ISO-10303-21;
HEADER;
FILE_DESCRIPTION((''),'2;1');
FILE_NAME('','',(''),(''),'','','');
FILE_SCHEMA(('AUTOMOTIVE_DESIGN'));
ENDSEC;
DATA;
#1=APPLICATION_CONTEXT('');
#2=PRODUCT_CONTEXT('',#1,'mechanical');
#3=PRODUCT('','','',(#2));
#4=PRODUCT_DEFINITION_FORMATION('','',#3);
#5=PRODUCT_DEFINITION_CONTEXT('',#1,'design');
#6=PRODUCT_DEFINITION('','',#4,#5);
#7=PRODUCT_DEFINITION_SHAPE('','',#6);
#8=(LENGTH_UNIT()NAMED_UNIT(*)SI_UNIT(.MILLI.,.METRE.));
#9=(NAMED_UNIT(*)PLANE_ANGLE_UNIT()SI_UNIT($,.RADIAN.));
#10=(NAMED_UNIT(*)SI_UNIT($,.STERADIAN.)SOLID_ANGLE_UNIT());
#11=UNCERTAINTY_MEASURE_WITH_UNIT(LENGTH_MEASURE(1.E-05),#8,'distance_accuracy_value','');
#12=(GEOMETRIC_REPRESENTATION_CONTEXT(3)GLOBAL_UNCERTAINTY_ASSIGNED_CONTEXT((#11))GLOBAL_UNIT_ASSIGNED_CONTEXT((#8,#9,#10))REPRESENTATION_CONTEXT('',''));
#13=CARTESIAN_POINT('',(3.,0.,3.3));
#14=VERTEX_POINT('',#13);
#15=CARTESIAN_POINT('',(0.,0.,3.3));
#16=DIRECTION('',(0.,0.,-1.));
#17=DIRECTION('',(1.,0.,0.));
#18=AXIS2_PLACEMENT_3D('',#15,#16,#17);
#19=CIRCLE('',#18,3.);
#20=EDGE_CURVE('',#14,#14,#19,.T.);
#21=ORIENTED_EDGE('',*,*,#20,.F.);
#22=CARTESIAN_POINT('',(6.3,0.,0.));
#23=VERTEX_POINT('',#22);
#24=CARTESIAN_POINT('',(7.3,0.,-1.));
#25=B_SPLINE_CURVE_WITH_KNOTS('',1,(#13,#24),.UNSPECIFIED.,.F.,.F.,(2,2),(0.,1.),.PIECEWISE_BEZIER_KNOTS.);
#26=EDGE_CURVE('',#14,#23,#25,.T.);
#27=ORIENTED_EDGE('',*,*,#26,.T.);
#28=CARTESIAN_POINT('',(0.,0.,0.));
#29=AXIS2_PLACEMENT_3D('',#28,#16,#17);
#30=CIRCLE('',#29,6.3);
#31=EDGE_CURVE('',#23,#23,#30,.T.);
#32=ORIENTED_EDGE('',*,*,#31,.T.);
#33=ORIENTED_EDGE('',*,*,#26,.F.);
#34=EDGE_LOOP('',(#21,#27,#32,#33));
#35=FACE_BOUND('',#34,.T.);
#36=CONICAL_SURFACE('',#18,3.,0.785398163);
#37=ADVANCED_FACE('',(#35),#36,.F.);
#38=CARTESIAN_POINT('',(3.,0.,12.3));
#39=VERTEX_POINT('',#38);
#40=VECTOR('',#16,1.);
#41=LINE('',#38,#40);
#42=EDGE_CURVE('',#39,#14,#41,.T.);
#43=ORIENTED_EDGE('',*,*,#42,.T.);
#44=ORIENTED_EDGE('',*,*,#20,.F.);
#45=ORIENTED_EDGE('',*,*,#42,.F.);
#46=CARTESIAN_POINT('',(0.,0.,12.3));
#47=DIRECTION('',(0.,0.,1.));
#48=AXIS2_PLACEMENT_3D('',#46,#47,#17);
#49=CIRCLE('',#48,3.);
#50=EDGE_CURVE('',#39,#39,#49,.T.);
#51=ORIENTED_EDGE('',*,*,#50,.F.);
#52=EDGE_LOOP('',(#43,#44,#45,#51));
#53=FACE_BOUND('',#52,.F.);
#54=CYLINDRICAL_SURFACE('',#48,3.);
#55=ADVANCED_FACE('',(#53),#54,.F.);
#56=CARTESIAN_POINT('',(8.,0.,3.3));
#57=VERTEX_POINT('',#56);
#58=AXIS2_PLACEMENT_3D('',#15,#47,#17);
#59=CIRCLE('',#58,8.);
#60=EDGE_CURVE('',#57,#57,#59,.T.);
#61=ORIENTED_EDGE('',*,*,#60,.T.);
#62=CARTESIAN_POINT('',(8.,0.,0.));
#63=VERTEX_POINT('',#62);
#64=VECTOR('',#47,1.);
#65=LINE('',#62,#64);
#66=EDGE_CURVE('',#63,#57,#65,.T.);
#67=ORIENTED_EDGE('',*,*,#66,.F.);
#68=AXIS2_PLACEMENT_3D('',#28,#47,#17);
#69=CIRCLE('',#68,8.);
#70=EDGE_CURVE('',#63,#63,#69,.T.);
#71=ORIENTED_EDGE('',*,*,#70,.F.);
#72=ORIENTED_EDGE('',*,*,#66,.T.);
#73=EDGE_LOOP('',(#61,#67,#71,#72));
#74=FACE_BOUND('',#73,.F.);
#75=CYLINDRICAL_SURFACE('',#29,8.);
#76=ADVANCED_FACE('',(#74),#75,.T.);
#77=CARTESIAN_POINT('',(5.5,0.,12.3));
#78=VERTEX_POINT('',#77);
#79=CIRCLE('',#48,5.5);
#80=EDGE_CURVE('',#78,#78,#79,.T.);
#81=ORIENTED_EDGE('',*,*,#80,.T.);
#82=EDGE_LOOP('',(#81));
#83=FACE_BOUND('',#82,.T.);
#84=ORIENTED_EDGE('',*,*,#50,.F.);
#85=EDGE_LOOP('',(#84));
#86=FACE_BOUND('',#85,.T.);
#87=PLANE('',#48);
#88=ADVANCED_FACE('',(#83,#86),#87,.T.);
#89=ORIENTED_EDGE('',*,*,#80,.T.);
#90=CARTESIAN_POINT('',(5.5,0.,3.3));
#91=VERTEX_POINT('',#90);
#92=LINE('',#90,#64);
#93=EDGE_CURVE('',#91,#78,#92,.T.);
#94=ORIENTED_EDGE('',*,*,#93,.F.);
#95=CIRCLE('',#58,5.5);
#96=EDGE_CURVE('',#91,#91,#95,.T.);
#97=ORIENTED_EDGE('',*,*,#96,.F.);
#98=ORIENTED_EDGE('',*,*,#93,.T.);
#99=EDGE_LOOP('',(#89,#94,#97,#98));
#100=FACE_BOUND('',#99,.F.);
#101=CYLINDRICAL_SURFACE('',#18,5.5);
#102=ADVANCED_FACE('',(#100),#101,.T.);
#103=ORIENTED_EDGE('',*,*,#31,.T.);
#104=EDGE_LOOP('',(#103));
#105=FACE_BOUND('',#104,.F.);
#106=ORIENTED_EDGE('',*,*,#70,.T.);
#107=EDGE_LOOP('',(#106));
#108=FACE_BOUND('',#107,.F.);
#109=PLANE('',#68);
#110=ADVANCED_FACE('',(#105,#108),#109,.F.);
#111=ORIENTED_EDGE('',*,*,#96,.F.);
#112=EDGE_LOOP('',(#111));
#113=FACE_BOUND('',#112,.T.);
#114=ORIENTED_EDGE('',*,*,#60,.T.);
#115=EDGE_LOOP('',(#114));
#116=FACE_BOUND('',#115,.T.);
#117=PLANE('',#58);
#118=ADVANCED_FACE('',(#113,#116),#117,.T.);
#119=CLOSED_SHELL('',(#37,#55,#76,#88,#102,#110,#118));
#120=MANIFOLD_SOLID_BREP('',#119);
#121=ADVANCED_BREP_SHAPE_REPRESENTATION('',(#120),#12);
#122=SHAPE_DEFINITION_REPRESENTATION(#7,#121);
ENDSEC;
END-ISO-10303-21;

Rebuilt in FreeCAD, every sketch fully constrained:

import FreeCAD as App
import Part
import Sketcher

V = App.Vector
Q = App.Units.Quantity

doc = App.newDocument("Part")
params = doc.addObject("Spreadsheet::Sheet", "Params")
for row, (alias, value) in enumerate([
    ("sketch1_diameter", "16 mm"),
    ("pad1_length", "3.3 mm"),
    ("sketch2_diameter", "11 mm"),
    ("pad2_length", "9 mm"),
    ("sketch3_diameter", "6 mm"),
    ("pocket1_taper", "45 deg"),
    ("sketch4_diameter", "6 mm"),
], start=1):
    params.set(f"A{row}", alias)
    params.set(f"B{row}", "=" + value)
    params.setAlias(f"B{row}", alias)

body = doc.addObject("PartDesign::Body", "Body")

# Sketch on XY plane
sketch1 = doc.addObject("Sketcher::SketchObject", "Sketch")
body.addObject(sketch1)
sketch1.AttachmentSupport = (doc.XY_Plane, [""])
sketch1.MapMode = "FlatFace"
sketch1.addGeometry(Part.Circle(V(0, 0, 0), V(0, 0, 1), 8), False)
sketch1.addConstraint(Sketcher.Constraint("Coincident", 0, 3, -1, 1))
sketch1.addConstraint(Sketcher.Constraint("Diameter", 0, Q("16 mm")))
sketch1.setExpression("Constraints[1]", "Params.sketch1_diameter")
pad1 = doc.addObject("PartDesign::Pad", "Pad")
body.addObject(pad1)
pad1.Profile = sketch1
pad1.setExpression("Length", "Params.pad1_length")

# Sketch on XY plane
sketch2 = doc.addObject("Sketcher::SketchObject", "Sketch001")
body.addObject(sketch2)
sketch2.AttachmentSupport = (doc.XY_Plane, [""])
sketch2.MapMode = "FlatFace"
sketch2.AttachmentOffset = App.Placement(V(0, 0, 3.3), App.Rotation())
sketch2.addGeometry(Part.Circle(V(0, 0, 0), V(0, 0, 1), 6), False)
sketch2.addConstraint(Sketcher.Constraint("Coincident", 0, 3, -1, 1))
sketch2.addConstraint(Sketcher.Constraint("Diameter", 0, Q("11 mm")))
sketch2.setExpression("Constraints[1]", "Params.sketch2_diameter")
pad2 = doc.addObject("PartDesign::Pad", "Pad001")
body.addObject(pad2)
pad2.Profile = sketch2
pad2.setExpression("Length", "Params.pad2_length")

# Sketch on XY plane
sketch3 = doc.addObject("Sketcher::SketchObject", "Sketch002")
body.addObject(sketch3)
sketch3.AttachmentSupport = (doc.XY_Plane, [""])
sketch3.MapMode = "FlatFace"
sketch3.AttachmentOffset = App.Placement(V(0, 0, 3.3), App.Rotation())
sketch3.addGeometry(Part.Circle(V(0, 0, 0), V(0, 0, 1), 3), False)
sketch3.addConstraint(Sketcher.Constraint("Coincident", 0, 3, -1, 1))
sketch3.addConstraint(Sketcher.Constraint("Diameter", 0, Q("6 mm")))
sketch3.setExpression("Constraints[1]", "Params.sketch3_diameter")
pocket1 = doc.addObject("PartDesign::Pocket", "Pocket")
body.addObject(pocket1)
pocket1.Profile = sketch3
pocket1.Type = "ThroughAll"
pocket1.setExpression("TaperAngle", "Params.pocket1_taper")

# Sketch on XY plane
sketch4 = doc.addObject("Sketcher::SketchObject", "Sketch003")
body.addObject(sketch4)
sketch4.AttachmentSupport = (doc.XY_Plane, [""])
sketch4.MapMode = "FlatFace"
sketch4.AttachmentOffset = App.Placement(V(0, 0, 12.3), App.Rotation())
sketch4.addGeometry(Part.Circle(V(0, 0, 0), V(0, 0, 1), 3), False)
sketch4.addConstraint(Sketcher.Constraint("Coincident", 0, 3, -1, 1))
sketch4.addConstraint(Sketcher.Constraint("Diameter", 0, Q("6 mm")))
sketch4.setExpression("Constraints[1]", "Params.sketch4_diameter")
pocket2 = doc.addObject("PartDesign::Pocket", "Pocket001")
body.addObject(pocket2)
pocket2.Profile = sketch4
pocket2.Type = "ThroughAll"

doc.recompute()
